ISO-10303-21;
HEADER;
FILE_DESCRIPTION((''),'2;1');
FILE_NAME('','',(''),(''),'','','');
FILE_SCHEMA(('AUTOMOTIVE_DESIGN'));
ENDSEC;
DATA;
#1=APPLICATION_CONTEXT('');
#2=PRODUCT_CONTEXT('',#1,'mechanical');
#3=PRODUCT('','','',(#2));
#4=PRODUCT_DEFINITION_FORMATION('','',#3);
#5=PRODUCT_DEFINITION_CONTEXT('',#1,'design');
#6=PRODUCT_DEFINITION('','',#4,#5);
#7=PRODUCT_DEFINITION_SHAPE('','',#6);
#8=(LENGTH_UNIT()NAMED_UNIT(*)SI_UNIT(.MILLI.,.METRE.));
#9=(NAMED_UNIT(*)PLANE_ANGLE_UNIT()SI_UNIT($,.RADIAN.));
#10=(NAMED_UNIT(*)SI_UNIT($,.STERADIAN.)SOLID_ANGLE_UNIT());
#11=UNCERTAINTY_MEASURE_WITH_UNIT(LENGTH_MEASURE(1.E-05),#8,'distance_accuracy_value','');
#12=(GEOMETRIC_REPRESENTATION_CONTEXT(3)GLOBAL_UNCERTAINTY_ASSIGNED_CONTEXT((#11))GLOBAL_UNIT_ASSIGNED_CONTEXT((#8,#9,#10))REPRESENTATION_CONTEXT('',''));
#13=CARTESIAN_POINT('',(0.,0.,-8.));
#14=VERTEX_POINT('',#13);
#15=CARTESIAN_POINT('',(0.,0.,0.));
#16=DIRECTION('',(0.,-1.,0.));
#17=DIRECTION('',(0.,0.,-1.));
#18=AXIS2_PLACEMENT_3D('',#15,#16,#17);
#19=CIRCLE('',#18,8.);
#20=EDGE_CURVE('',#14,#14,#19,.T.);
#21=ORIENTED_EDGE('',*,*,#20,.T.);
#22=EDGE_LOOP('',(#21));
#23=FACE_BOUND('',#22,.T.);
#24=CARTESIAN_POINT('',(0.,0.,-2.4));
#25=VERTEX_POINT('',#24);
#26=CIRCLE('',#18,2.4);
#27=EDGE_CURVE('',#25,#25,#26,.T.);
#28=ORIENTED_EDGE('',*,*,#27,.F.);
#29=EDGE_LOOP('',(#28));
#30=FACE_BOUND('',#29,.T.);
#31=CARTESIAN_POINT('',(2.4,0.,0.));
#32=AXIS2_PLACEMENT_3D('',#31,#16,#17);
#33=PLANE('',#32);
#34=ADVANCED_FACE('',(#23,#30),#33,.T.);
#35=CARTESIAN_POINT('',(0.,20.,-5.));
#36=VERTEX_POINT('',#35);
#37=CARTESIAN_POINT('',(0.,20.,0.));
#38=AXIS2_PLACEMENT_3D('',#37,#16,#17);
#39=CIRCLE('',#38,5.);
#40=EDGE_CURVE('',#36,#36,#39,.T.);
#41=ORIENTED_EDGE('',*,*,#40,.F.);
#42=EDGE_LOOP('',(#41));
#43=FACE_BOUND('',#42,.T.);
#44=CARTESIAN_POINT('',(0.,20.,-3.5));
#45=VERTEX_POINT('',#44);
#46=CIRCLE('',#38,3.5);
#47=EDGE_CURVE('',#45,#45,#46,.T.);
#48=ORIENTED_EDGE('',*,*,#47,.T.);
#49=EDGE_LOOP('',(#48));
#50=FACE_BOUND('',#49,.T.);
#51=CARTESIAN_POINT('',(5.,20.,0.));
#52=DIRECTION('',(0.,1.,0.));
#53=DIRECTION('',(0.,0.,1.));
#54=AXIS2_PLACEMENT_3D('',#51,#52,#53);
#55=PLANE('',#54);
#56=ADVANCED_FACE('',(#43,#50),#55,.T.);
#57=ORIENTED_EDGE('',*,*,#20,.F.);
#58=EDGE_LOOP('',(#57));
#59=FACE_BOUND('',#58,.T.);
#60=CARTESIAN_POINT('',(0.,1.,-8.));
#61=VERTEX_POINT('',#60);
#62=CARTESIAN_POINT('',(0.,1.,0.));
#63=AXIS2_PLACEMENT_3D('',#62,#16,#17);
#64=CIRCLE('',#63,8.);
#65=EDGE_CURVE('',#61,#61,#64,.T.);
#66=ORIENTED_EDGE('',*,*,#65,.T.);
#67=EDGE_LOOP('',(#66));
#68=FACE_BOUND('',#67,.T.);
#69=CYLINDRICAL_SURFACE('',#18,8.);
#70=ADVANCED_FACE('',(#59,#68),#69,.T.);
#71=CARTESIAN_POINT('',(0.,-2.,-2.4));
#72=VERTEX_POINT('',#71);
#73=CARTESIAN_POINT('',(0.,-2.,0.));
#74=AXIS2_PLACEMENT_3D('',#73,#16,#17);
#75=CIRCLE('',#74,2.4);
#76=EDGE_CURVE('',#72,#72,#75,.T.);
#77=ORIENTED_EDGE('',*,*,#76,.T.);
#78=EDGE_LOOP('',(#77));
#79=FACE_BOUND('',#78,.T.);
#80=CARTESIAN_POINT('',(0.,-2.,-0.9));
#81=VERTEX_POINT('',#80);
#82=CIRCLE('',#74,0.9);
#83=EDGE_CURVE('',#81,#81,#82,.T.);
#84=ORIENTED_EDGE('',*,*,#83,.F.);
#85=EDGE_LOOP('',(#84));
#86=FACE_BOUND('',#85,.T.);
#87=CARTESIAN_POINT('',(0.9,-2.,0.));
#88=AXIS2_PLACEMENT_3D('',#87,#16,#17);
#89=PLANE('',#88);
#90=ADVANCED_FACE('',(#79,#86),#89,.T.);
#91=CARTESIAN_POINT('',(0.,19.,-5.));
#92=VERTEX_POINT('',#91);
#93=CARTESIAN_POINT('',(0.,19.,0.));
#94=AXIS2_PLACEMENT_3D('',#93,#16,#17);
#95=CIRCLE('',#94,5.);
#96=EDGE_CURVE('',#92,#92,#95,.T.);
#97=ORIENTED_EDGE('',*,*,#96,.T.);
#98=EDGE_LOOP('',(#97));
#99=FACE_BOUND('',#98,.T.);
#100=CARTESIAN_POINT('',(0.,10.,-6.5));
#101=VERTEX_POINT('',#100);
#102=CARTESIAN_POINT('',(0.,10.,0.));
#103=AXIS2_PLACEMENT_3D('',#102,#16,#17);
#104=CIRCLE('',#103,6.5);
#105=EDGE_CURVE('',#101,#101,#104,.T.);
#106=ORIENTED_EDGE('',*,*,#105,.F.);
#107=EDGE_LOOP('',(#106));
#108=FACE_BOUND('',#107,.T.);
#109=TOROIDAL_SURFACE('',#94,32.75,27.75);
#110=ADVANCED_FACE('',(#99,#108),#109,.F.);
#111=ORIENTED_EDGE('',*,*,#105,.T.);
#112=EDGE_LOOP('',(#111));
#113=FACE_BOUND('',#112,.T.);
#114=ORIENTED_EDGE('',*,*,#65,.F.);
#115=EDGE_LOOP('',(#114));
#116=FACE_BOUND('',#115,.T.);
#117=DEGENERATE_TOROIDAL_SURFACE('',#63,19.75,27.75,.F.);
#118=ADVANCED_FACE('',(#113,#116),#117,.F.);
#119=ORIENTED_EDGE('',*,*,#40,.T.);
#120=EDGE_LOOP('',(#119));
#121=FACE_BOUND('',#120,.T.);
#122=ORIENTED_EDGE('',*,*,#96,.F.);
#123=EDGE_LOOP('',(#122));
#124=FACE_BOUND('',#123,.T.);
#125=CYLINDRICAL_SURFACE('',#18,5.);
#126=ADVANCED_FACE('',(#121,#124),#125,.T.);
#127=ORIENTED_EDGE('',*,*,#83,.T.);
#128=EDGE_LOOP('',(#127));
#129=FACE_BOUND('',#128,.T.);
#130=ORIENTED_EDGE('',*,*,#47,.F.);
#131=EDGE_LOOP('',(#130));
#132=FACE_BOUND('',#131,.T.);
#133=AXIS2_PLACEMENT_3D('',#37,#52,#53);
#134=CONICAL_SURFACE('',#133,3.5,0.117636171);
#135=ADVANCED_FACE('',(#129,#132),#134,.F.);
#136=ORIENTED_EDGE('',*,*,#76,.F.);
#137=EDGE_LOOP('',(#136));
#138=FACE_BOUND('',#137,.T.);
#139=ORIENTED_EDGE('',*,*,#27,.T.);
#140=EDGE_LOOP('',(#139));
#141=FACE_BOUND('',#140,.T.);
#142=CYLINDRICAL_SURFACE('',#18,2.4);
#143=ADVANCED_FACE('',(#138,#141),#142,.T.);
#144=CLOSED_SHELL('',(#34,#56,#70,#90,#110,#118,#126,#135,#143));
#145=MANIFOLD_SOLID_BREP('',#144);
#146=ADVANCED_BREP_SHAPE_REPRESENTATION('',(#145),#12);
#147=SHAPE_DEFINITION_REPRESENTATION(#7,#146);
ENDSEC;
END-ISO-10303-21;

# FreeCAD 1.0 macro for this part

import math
import FreeCAD as App
import Part
import Sketcher
Q = App.Units.Quantity

doc = App.newDocument("Part")
body = doc.addObject("PartDesign::Body", "Body")

# Sketch on XY plane
sketch1 = body.newObject("Sketcher::SketchObject", "Sketch")
sketch1.AttachmentSupport = (doc.getObject("XY_Plane"), [""])
sketch1.MapMode = "FlatFace"
sketch1.addGeometry(Part.LineSegment(App.Vector(2.4, -2, 0), App.Vector(2.4, 0, 0)), False)
sketch1.addGeometry(Part.LineSegment(App.Vector(2.4, 0, 0), App.Vector(8, 0, 0)), False)
sketch1.addGeometry(Part.LineSegment(App.Vector(8, 0, 0), App.Vector(8, 1, 0)), False)
sketch1.addGeometry(Part.ArcOfCircle(Part.Circle(App.Vector(-19.8, 1, 0), App.Vector(0, 0, 1), 27.8), math.radians(0), math.radians(18.92)), False)
sketch1.addGeometry(Part.ArcOfCircle(Part.Circle(App.Vector(32.8, 19, 0), App.Vector(0, 0, 1), 27.8), math.radians(-180), math.radians(-161.08)), False)
sketch1.addGeometry(Part.LineSegment(App.Vector(5, 19, 0), App.Vector(5, 20, 0)), False)
sketch1.addGeometry(Part.LineSegment(App.Vector(5, 20, 0), App.Vector(3.5, 20, 0)), False)
sketch1.addGeometry(Part.LineSegment(App.Vector(3.5, 20, 0), App.Vector(0.9, -2, 0)), False)
sketch1.addGeometry(Part.LineSegment(App.Vector(0.9, -2, 0), App.Vector(2.4, -2, 0)), False)
sketch1.addConstraint(Sketcher.Constraint("Coincident", 0, 2, 1, 1))
sketch1.addConstraint(Sketcher.Constraint("Coincident", 1, 2, 2, 1))
sketch1.addConstraint(Sketcher.Constraint("Tangent", 2, 2, 3, 1))
sketch1.addConstraint(Sketcher.Constraint("Tangent", 3, 2, 4, 2))
sketch1.addConstraint(Sketcher.Constraint("Tangent", 4, 1, 5, 1))
sketch1.addConstraint(Sketcher.Constraint("Coincident", 5, 2, 6, 1))
sketch1.addConstraint(Sketcher.Constraint("Coincident", 6, 2, 7, 1))
sketch1.addConstraint(Sketcher.Constraint("Coincident", 7, 2, 8, 1))
sketch1.addConstraint(Sketcher.Constraint("Coincident", 8, 2, 0, 1))
sketch1.addConstraint(Sketcher.Constraint("Vertical", 0))
sketch1.addConstraint(Sketcher.Constraint("Horizontal", 1))
sketch1.addConstraint(Sketcher.Constraint("Vertical", 2))
sketch1.addConstraint(Sketcher.Constraint("Vertical", 5))
sketch1.addConstraint(Sketcher.Constraint("Horizontal", 6))
sketch1.addConstraint(Sketcher.Constraint("Horizontal", 8))
sketch1.addConstraint(Sketcher.Constraint("Equal", 3, 4))
sketch1.addConstraint(Sketcher.Constraint("PointOnObject", 0, 2, -1))
sketch1.addConstraint(Sketcher.Constraint("Equal", 6, 8))
sketch1.addConstraint(Sketcher.Constraint("Equal", 2, 5))
sketch1.addConstraint(Sketcher.Constraint("DistanceY", 0, 1, 0, 2, Q("2 mm")))
sketch1.addConstraint(Sketcher.Constraint("DistanceY", 2, 1, 2, 2, Q("1 mm")))
sketch1.addConstraint(Sketcher.Constraint("Radius", 3, Q("27.75 mm")))
sketch1.addConstraint(Sketcher.Constraint("DistanceX", 1, 1, 1, 2, Q("5.6 mm")))
sketch1.addConstraint(Sketcher.Constraint("DistanceX", 6, 2, 6, 1, Q("1.5 mm")))
sketch1.addConstraint(Sketcher.Constraint("DistanceY", -1, 1, 4, 3, Q("19 mm")))
sketch1.addConstraint(Sketcher.Constraint("DistanceX", -1, 1, 1, 2, Q("8 mm")))
revolution = body.newObject("PartDesign::Revolution", "Revolution")
revolution.Profile = sketch1
revolution.ReferenceAxis = (sketch1, ["V_Axis"])
revolution.Angle = 360

doc.recompute()
